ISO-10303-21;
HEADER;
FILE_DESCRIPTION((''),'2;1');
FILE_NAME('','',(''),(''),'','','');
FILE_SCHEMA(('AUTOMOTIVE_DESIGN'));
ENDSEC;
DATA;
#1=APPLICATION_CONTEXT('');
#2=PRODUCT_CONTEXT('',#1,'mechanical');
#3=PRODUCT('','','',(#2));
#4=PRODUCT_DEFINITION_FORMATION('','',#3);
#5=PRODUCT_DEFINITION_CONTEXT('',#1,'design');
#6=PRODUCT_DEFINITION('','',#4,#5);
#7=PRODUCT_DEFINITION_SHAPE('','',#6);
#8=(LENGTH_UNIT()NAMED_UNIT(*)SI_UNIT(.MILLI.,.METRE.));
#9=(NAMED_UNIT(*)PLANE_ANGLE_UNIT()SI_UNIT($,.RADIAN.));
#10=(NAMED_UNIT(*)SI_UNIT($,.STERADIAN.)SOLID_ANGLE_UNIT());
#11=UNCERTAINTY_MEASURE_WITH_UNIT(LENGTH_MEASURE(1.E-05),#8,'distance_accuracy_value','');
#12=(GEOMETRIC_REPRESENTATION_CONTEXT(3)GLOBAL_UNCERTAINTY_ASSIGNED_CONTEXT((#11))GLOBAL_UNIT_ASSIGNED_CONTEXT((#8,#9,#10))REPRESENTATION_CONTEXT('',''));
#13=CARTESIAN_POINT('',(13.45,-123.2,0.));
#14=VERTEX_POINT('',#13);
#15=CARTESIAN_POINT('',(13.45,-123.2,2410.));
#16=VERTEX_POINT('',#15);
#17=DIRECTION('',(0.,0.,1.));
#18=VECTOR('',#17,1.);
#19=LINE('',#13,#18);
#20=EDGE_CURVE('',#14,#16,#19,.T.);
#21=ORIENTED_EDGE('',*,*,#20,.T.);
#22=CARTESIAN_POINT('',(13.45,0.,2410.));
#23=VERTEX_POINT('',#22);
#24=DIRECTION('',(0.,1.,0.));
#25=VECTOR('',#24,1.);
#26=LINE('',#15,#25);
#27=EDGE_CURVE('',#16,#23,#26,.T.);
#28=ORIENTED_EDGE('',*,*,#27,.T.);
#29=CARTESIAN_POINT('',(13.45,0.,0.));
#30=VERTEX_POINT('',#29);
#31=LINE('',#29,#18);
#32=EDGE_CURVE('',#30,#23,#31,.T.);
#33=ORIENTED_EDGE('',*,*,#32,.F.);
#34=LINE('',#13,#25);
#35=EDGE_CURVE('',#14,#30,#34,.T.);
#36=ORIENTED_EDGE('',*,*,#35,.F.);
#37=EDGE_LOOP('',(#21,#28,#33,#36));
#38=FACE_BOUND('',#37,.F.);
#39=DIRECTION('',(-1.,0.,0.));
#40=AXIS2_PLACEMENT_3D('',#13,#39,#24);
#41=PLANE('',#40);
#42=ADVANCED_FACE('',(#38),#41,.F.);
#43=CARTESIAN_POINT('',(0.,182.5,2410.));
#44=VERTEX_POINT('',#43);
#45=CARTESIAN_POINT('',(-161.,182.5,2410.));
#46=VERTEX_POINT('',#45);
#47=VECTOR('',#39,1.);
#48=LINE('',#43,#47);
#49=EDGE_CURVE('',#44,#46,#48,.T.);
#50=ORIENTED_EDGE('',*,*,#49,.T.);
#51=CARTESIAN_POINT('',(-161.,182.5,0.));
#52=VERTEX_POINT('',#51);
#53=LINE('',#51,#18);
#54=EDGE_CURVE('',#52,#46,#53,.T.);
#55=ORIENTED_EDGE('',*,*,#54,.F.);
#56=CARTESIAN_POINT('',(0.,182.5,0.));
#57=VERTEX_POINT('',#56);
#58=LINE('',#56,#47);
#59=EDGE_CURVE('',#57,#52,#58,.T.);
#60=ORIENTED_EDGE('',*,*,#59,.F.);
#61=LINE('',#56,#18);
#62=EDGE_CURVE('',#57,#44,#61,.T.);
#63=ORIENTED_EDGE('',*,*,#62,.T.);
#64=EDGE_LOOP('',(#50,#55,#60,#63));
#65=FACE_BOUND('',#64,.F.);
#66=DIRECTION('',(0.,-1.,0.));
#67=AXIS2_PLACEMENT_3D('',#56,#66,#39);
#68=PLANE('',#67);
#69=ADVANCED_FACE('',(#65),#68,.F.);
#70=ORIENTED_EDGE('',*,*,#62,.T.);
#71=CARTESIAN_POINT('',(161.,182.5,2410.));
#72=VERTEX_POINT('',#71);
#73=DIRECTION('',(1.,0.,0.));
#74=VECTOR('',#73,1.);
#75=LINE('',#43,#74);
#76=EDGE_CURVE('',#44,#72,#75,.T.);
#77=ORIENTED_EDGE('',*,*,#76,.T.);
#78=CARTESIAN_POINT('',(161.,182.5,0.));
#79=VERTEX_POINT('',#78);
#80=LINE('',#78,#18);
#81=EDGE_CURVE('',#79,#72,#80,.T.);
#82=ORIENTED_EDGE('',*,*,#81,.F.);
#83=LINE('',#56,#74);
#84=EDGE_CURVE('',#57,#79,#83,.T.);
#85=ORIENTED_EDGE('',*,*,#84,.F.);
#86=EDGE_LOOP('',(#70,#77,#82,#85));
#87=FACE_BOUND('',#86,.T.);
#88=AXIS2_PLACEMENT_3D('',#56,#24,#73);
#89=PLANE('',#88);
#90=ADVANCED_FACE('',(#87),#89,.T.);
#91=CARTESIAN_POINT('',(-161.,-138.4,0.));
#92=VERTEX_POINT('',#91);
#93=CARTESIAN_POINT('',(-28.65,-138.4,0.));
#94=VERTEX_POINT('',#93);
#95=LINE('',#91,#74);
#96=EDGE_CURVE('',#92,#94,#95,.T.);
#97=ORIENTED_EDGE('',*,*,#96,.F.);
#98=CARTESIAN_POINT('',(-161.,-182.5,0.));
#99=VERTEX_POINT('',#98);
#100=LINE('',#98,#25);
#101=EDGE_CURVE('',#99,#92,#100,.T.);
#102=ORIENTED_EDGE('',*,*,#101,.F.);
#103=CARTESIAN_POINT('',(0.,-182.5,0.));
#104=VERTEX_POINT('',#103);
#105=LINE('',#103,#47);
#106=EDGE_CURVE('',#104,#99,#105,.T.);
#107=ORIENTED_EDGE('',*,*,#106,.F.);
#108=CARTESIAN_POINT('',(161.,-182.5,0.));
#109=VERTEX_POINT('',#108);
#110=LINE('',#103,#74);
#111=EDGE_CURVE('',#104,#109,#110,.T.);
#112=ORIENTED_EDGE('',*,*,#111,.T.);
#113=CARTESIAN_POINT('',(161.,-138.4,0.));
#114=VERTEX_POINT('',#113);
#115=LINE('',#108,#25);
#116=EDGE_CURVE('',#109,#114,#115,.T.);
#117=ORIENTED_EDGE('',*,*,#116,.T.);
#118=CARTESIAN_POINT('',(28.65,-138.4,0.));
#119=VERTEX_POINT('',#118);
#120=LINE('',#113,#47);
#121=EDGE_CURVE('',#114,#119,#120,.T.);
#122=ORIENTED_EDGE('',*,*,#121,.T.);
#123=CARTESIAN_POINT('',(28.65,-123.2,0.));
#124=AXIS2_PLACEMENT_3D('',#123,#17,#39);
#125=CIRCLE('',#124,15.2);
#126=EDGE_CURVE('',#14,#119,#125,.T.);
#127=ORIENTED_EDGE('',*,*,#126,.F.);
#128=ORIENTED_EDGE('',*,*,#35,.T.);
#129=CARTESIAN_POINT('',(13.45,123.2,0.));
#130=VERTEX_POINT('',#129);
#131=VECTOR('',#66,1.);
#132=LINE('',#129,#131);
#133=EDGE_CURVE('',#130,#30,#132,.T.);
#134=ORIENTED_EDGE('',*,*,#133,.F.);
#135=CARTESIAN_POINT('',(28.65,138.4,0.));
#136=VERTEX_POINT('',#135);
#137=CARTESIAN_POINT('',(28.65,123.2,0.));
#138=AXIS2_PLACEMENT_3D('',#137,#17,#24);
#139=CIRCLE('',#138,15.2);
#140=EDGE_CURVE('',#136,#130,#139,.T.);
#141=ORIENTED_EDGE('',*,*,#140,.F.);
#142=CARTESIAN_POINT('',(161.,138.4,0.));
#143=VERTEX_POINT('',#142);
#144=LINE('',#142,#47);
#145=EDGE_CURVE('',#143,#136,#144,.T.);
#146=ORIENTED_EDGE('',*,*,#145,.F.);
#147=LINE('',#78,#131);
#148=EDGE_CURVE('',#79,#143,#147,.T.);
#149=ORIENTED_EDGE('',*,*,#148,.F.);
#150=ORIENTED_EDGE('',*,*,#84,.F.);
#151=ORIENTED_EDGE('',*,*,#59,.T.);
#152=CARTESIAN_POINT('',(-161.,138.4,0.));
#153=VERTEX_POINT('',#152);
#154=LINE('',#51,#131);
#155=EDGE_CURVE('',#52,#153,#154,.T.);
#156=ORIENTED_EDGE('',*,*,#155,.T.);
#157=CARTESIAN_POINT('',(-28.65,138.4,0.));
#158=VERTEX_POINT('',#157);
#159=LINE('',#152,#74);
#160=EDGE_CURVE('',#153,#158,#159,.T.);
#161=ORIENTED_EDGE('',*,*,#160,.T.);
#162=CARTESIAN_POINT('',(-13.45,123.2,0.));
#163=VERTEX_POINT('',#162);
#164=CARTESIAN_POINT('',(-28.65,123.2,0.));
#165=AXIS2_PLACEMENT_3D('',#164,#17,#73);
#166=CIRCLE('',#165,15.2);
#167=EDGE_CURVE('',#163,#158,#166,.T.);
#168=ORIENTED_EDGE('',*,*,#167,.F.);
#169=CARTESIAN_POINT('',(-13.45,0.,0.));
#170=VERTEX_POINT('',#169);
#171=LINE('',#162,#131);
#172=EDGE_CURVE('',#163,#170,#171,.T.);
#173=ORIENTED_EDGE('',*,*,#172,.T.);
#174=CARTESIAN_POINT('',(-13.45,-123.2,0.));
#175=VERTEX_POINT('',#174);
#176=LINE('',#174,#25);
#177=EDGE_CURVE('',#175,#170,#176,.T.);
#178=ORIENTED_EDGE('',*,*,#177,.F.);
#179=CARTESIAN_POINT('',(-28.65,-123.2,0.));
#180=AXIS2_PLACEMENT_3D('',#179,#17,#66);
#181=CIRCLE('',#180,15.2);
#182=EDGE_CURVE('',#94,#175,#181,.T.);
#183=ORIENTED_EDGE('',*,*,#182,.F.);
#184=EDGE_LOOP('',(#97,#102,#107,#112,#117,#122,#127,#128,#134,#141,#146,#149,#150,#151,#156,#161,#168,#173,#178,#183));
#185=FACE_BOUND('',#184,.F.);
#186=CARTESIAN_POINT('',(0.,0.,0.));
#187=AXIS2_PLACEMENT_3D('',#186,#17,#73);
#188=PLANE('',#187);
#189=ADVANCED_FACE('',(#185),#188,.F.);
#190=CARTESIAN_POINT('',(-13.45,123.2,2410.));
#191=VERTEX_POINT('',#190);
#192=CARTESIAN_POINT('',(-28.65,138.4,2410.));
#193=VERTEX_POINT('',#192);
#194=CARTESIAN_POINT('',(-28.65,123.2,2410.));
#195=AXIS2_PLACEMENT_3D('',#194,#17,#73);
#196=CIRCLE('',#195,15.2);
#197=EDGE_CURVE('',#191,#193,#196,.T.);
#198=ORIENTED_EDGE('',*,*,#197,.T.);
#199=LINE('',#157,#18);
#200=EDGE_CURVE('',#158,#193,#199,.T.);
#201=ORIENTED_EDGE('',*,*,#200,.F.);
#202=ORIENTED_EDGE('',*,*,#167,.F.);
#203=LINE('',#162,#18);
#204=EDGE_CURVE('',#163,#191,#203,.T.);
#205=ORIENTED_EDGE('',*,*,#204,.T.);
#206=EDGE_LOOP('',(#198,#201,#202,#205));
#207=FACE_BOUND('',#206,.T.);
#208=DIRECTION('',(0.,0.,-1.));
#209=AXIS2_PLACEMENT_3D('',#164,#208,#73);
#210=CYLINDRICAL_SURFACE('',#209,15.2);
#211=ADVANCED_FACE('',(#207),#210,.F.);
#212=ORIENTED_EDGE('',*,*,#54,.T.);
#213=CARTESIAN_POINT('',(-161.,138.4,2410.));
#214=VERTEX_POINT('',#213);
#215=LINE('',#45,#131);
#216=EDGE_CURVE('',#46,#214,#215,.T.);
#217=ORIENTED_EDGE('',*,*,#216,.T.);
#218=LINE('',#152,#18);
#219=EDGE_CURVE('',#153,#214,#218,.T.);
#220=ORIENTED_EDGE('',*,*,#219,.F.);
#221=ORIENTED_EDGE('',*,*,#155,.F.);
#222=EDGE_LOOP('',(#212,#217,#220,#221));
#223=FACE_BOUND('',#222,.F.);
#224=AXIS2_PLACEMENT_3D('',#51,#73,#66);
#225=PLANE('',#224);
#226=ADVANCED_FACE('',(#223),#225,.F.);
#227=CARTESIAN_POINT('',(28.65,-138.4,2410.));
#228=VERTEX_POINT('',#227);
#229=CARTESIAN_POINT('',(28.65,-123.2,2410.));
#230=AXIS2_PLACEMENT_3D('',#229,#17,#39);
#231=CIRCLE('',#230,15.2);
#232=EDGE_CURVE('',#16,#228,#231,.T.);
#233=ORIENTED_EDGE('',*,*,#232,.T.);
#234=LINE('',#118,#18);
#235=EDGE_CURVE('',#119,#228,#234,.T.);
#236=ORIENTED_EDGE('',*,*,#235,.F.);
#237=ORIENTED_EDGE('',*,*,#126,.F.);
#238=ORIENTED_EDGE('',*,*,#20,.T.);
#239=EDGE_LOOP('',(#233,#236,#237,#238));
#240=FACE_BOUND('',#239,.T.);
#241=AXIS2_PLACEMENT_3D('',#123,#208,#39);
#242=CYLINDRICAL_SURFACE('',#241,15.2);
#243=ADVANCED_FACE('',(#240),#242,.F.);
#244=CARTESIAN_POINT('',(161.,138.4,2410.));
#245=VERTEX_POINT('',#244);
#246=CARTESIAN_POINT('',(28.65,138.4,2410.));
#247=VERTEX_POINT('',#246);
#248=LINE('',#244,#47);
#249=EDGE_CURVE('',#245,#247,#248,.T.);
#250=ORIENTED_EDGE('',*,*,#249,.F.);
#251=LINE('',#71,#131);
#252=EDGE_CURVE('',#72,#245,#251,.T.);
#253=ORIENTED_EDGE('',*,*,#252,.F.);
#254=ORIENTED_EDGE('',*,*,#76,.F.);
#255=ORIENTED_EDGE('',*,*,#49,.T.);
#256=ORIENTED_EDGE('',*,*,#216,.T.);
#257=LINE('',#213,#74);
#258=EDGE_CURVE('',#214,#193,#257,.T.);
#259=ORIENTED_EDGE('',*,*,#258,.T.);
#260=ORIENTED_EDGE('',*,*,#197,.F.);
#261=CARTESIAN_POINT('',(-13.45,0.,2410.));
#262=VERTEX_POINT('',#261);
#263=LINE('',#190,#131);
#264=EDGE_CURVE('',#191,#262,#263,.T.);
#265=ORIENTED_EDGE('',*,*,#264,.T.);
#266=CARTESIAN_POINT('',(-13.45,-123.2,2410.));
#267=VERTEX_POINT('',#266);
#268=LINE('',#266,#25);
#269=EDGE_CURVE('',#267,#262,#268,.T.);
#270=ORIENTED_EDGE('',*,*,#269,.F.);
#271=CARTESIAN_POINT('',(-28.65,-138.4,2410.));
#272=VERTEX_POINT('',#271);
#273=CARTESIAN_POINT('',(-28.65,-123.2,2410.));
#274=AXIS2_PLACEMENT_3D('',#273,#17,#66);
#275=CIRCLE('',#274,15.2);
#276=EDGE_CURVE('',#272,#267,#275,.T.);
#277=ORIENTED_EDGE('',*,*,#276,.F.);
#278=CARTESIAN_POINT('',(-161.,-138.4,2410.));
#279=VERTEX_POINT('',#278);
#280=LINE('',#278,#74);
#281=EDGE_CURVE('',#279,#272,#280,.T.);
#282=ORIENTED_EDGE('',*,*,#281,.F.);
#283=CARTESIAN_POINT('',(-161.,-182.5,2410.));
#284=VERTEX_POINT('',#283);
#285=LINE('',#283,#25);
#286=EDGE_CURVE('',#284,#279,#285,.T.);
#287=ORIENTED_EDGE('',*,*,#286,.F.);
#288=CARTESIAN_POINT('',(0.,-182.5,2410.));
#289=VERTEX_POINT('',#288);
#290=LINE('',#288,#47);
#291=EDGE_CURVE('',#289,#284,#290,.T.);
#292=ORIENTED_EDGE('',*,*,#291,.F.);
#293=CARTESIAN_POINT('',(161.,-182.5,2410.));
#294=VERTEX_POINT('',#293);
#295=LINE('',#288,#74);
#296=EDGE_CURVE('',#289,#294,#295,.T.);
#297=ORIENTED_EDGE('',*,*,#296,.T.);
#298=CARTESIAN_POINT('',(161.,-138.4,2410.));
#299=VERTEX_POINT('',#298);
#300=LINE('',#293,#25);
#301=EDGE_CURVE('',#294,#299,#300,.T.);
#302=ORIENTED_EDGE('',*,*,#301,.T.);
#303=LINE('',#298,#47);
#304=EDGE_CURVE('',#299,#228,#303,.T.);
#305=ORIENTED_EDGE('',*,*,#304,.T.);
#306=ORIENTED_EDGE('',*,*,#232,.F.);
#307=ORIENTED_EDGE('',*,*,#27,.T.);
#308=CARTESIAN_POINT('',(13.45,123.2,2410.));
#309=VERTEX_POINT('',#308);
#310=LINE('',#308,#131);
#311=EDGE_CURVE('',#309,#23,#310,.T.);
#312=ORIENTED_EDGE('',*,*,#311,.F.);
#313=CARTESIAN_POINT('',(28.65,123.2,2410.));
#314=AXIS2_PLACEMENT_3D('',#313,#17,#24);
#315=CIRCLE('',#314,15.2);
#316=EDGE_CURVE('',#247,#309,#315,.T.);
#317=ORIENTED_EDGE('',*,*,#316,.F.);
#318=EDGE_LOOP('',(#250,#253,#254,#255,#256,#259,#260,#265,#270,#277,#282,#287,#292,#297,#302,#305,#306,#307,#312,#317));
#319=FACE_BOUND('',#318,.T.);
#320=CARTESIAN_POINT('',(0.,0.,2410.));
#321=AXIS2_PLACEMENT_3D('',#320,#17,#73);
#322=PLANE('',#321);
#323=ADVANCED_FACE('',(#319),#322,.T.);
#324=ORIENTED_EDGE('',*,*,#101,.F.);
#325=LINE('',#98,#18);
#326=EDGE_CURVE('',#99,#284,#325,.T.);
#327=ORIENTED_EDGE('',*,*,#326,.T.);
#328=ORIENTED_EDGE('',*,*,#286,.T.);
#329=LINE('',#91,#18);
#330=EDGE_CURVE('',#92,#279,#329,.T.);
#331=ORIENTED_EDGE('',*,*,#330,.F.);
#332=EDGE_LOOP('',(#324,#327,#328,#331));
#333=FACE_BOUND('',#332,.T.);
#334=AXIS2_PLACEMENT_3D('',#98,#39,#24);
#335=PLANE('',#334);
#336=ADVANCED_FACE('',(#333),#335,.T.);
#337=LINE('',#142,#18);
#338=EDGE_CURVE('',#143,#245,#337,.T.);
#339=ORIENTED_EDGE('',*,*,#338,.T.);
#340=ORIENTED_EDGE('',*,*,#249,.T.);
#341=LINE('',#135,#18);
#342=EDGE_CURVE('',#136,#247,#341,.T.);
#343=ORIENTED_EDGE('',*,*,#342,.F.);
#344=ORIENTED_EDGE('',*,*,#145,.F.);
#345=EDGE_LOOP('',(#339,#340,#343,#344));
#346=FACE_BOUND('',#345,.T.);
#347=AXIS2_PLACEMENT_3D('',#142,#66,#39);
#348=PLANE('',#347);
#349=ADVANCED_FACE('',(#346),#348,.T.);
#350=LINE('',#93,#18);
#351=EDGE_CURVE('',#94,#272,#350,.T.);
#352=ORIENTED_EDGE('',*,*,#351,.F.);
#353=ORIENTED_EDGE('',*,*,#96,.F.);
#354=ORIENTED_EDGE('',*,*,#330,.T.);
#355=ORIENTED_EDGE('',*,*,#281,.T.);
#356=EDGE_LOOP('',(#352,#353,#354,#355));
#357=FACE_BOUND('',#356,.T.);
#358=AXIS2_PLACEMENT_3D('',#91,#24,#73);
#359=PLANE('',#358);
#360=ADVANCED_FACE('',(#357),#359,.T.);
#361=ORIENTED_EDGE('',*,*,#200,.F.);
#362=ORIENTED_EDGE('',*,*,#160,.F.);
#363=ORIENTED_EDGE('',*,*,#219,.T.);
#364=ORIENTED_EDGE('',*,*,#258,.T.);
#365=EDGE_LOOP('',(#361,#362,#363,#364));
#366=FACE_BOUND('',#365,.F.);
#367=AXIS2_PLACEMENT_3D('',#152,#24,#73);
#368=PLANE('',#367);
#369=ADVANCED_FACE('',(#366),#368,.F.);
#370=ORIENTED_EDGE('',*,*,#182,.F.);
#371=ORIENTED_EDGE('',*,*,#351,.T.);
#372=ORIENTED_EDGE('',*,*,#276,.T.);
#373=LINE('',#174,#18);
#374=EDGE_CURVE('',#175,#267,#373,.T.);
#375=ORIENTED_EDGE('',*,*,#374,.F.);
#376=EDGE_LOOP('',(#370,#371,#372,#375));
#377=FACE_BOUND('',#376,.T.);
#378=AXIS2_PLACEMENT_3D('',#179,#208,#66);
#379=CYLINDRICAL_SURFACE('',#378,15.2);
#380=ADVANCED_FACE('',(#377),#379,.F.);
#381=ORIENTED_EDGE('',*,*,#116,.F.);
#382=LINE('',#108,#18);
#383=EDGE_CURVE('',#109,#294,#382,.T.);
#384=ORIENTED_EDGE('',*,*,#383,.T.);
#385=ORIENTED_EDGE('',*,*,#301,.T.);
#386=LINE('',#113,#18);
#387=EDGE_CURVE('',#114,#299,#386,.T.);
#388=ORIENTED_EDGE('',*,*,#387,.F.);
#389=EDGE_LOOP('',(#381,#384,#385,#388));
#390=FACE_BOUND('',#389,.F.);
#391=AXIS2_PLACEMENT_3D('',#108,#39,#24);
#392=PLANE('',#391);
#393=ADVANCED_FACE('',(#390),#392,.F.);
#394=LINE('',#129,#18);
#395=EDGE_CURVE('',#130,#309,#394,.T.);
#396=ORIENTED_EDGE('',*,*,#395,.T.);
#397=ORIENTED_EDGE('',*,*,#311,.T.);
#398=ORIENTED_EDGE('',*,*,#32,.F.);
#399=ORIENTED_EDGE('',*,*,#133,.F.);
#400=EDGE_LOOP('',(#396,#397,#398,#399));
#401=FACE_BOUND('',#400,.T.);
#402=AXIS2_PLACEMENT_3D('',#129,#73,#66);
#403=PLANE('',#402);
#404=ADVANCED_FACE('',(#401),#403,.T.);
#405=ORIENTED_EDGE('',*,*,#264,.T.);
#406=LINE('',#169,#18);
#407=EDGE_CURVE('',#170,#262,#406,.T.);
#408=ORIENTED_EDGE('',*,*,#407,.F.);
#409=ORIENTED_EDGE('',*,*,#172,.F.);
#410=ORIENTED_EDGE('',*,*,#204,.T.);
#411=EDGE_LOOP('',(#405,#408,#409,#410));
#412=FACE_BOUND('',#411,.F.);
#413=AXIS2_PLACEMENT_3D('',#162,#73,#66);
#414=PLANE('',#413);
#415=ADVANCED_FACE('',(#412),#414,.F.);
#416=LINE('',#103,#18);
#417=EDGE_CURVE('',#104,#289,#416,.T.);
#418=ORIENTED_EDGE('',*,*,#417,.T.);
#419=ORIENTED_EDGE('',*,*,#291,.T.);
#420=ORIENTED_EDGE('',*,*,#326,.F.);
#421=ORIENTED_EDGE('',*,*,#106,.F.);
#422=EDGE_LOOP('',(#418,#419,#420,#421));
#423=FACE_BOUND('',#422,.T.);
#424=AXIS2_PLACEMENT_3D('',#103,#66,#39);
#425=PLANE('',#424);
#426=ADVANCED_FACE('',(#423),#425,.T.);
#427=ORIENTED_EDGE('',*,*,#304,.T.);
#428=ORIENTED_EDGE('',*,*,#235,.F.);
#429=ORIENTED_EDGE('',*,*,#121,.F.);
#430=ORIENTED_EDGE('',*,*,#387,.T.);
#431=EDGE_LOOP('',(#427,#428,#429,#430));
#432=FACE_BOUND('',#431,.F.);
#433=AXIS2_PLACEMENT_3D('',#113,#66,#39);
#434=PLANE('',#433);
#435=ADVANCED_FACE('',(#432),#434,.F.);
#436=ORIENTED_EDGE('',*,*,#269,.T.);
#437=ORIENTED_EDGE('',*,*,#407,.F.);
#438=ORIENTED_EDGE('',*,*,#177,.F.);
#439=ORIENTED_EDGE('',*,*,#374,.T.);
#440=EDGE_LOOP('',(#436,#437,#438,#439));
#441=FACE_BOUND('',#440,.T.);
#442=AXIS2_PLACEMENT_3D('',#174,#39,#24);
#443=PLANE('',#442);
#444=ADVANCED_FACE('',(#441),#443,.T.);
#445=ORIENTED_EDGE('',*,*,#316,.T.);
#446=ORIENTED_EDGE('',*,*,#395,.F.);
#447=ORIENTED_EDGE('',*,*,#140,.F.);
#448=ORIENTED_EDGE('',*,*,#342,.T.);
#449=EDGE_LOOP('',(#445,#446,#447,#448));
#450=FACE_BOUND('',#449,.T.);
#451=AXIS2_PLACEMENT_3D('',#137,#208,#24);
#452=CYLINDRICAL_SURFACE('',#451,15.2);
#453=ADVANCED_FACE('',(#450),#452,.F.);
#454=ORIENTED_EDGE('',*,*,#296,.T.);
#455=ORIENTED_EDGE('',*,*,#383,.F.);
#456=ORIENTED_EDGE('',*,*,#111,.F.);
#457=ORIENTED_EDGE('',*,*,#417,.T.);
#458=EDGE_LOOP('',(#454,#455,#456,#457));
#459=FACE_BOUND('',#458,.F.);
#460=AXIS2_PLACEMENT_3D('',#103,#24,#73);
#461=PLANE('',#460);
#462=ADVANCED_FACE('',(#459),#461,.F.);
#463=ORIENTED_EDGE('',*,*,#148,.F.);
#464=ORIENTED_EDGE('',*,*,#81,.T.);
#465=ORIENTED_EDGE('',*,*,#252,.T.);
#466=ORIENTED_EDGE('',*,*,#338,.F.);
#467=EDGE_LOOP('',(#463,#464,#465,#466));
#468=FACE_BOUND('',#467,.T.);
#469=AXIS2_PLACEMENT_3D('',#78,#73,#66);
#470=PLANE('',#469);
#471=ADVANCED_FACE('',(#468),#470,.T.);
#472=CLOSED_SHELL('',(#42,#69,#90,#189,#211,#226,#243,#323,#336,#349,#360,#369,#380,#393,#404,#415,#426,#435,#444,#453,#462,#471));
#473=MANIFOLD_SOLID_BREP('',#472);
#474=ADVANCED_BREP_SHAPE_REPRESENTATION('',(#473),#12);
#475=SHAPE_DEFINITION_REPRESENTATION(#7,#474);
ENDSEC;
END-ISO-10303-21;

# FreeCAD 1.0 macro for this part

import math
import FreeCAD as App
import Part
import Sketcher
from FreeCAD import Vector

doc = App.newDocument("Part")
params = doc.addObject("Spreadsheet::Sheet", "Params")
for row, (alias, value) in enumerate([
    ("sketch1_radius", "15.2 mm"),
    ("sketch1_height", "44.1 mm"),
    ("pad1_length", "2410 mm"),
], start=1):
    params.set(f"A{row}", alias)
    params.set(f"B{row}", "=" + value)
    params.setAlias(f"B{row}", alias)

body = doc.addObject("PartDesign::Body", "Body")

sketch1 = body.newObject("Sketcher::SketchObject", "Sketch")
sketch1.AttachmentSupport = (doc.getObject("XY_Plane"), [""])
sketch1.MapMode = "FlatFace"
sketch1.addGeometry([
    Part.LineSegment(Vector(-161, -138, 0), Vector(-161, -182, 0)),
    Part.LineSegment(Vector(-161, -182, 0), Vector(161, -182, 0)),
    Part.LineSegment(Vector(161, -182, 0), Vector(161, -138, 0)),
    Part.LineSegment(Vector(161, -138, 0), Vector(29, -138, 0)),
    Part.ArcOfCircle(Part.Circle(Vector(29, -123, 0), Vector(0, 0, 1), 15), math.radians(180), math.radians(270)),
    Part.LineSegment(Vector(13, -123, 0), Vector(13, 123, 0)),
    Part.ArcOfCircle(Part.Circle(Vector(29, 123, 0), Vector(0, 0, 1), 15), math.radians(90), math.radians(180)),
    Part.LineSegment(Vector(29, 138, 0), Vector(161, 138, 0)),
    Part.LineSegment(Vector(161, 138, 0), Vector(161, 182, 0)),
    Part.LineSegment(Vector(161, 182, 0), Vector(-161, 182, 0)),
    Part.LineSegment(Vector(-161, 182, 0), Vector(-161, 138, 0)),
    Part.LineSegment(Vector(-161, 138, 0), Vector(-29, 138, 0)),
    Part.ArcOfCircle(Part.Circle(Vector(-29, 123, 0), Vector(0, 0, 1), 15), math.radians(0), math.radians(90)),
    Part.LineSegment(Vector(-13, 123, 0), Vector(-13, -123, 0)),
    Part.ArcOfCircle(Part.Circle(Vector(-29, -123, 0), Vector(0, 0, 1), 15), math.radians(-90), math.radians(0)),
    Part.LineSegment(Vector(-29, -138, 0), Vector(-161, -138, 0)),
], False)
sketch1.addConstraint([
    Sketcher.Constraint("Coincident", 0, 2, 1, 1),
    Sketcher.Constraint("Coincident", 1, 2, 2, 1),
    Sketcher.Constraint("Coincident", 2, 2, 3, 1),
    Sketcher.Constraint("Tangent", 3, 2, 4, 2),
    Sketcher.Constraint("Tangent", 4, 1, 5, 1),
    Sketcher.Constraint("Tangent", 5, 2, 6, 2),
    Sketcher.Constraint("Tangent", 6, 1, 7, 1),
    Sketcher.Constraint("Coincident", 7, 2, 8, 1),
    Sketcher.Constraint("Coincident", 8, 2, 9, 1),
    Sketcher.Constraint("Coincident", 9, 2, 10, 1),
    Sketcher.Constraint("Coincident", 10, 2, 11, 1),
    Sketcher.Constraint("Tangent", 11, 2, 12, 2),
    Sketcher.Constraint("Tangent", 12, 1, 13, 1),
    Sketcher.Constraint("Tangent", 13, 2, 14, 2),
    Sketcher.Constraint("Tangent", 14, 1, 15, 1),
    Sketcher.Constraint("Coincident", 15, 2, 0, 1),
    Sketcher.Constraint("Vertical", 0),
    Sketcher.Constraint("Horizontal", 1),
    Sketcher.Constraint("Vertical", 2),
    Sketcher.Constraint("Horizontal", 3),
    Sketcher.Constraint("Vertical", 5),
    Sketcher.Constraint("Horizontal", 7),
    Sketcher.Constraint("Vertical", 8),
    Sketcher.Constraint("Horizontal", 9),
    Sketcher.Constraint("Vertical", 10),
    Sketcher.Constraint("Horizontal", 11),
    Sketcher.Constraint("Vertical", 13),
    Sketcher.Constraint("Horizontal", 15),
    Sketcher.Constraint("Equal", 4, 6),
    Sketcher.Constraint("Equal", 6, 12),
    Sketcher.Constraint("Equal", 12, 14),
    Sketcher.Constraint("Symmetric", 4, 3, 12, 3, -1, 1),
    Sketcher.Constraint("Symmetric", 0, 2, 8, 2, -1, 1),
    Sketcher.Constraint("Symmetric", 7, 2, 10, 2, -2),
    Sketcher.Constraint("Symmetric", 2, 2, 15, 2, -2),
    Sketcher.Constraint("Radius", 4, 15.2),
    Sketcher.Constraint("DistanceY", 0, 2, 0, 1, 44.1),
    Sketcher.Constraint("DistanceX", 0, 2, -1, 1, 161.0),
    Sketcher.Constraint("DistanceY", 0, 2, -1, 1, 182.5),
    Sketcher.Constraint("DistanceX", -1, 1, 4, 1, 13.45),
])
sketch1.setExpression("Constraints[35]", "Params.sketch1_radius")
sketch1.setExpression("Constraints[36]", "Params.sketch1_height")
pad1 = body.newObject("PartDesign::Pad", "Pad")
pad1.Profile = sketch1
pad1.setExpression("Length", "Params.pad1_length")

doc.recompute()
